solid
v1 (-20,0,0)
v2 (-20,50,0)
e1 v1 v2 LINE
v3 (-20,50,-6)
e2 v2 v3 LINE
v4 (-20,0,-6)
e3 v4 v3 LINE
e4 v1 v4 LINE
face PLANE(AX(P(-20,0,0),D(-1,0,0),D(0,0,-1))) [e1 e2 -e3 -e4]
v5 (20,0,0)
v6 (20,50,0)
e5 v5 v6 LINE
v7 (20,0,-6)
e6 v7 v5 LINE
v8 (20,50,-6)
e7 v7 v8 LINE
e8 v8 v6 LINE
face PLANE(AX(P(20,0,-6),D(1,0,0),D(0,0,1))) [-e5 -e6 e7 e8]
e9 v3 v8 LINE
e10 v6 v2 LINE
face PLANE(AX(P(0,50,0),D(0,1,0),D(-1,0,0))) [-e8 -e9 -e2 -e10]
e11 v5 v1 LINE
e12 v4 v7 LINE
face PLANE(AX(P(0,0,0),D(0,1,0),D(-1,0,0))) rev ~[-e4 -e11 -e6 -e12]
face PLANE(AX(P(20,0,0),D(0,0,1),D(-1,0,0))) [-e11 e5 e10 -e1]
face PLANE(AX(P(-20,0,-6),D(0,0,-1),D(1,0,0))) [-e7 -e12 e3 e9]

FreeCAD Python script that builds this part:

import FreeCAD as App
import Part
import Sketcher
from FreeCAD import Vector

doc = App.newDocument("Part")
params = doc.addObject("Spreadsheet::Sheet", "Params")
for row, (alias, value) in enumerate([
    ("sketch1_width", "40 mm"),
    ("sketch1_height", "6 mm"),
    ("pad1_length", "50 mm"),
], start=1):
    params.set(f"A{row}", alias)
    params.set(f"B{row}", "=" + value)
    params.setAlias(f"B{row}", alias)

body = doc.addObject("PartDesign::Body", "Body")

# Sketch on XZ plane
sketch1 = doc.addObject("Sketcher::SketchObject", "Sketch")
body.addObject(sketch1)
sketch1.AttachmentSupport = (doc.XZ_Plane, [""])
sketch1.MapMode = "FlatFace"
sketch1.addGeometry(Part.LineSegment(Vector(-20, 0, 0), Vector(20, 0, 0)), False)
sketch1.addGeometry(Part.LineSegment(Vector(20, 0, 0), Vector(20, -6, 0)), False)
sketch1.addGeometry(Part.LineSegment(Vector(20, -6, 0), Vector(-20, -6, 0)), False)
sketch1.addGeometry(Part.LineSegment(Vector(-20, -6, 0), Vector(-20, 0, 0)), False)
sketch1.addConstraint(Sketcher.Constraint("Coincident", 0, 2, 1, 1))
sketch1.addConstraint(Sketcher.Constraint("Coincident", 1, 2, 2, 1))
sketch1.addConstraint(Sketcher.Constraint("Coincident", 2, 2, 3, 1))
sketch1.addConstraint(Sketcher.Constraint("Coincident", 3, 2, 0, 1))
sketch1.addConstraint(Sketcher.Constraint("Horizontal", 0))
sketch1.addConstraint(Sketcher.Constraint("Vertical", 1))
sketch1.addConstraint(Sketcher.Constraint("Horizontal", 2))
sketch1.addConstraint(Sketcher.Constraint("Vertical", 3))
sketch1.addConstraint(Sketcher.Constraint("Symmetric", 0, 2, 3, 2, -1, 1))
sketch1.addConstraint(Sketcher.Constraint("DistanceX", 0, 1, 0, 2, 40.0))
sketch1.addConstraint(Sketcher.Constraint("DistanceY", 1, 2, 1, 1, 6.0))
sketch1.setExpression("Constraints[9]", "Params.sketch1_width")
sketch1.setExpression("Constraints[10]", "Params.sketch1_height")
pad1 = doc.addObject("PartDesign::Pad", "Pad")
body.addObject(pad1)
pad1.Profile = sketch1
pad1.setExpression("Length", "Params.pad1_length")
pad1.Reversed = True

doc.recompute()
